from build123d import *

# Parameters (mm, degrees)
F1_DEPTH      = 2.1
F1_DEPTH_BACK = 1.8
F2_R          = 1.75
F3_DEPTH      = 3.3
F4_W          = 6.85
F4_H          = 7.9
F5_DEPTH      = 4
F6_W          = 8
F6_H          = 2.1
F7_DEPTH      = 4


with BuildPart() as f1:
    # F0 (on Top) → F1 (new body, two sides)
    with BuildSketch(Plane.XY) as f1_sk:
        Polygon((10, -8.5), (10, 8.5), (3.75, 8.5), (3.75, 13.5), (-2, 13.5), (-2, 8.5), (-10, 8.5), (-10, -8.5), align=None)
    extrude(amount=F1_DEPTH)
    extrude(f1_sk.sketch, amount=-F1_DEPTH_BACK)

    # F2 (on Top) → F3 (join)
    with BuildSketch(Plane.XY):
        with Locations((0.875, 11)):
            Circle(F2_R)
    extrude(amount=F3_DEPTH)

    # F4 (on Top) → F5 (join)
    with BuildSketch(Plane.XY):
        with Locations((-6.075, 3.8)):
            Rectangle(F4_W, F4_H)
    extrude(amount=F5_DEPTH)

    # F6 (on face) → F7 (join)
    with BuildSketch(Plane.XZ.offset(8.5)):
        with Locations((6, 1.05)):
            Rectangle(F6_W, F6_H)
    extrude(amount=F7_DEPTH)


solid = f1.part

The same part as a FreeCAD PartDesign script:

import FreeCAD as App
import Part
import Sketcher
from FreeCAD import Vector
Q = App.Units.Quantity

doc = App.newDocument("Part")
body = doc.addObject("PartDesign::Body", "Body")

sketch1 = body.newObject("Sketcher::SketchObject", "Sketch")
sketch1.AttachmentSupport = (doc.getObject("XY_Plane"), [""])
sketch1.MapMode = "FlatFace"
sketch1.addGeometry([
    Part.LineSegment(Vector(10, -8, 0), Vector(10, 8, 0)),
    Part.LineSegment(Vector(10, 8, 0), Vector(4, 8, 0)),
    Part.LineSegment(Vector(4, 8, 0), Vector(4, 14, 0)),
    Part.LineSegment(Vector(4, 14, 0), Vector(-2, 14, 0)),
    Part.LineSegment(Vector(-2, 14, 0), Vector(-2, 8, 0)),
    Part.LineSegment(Vector(-2, 8, 0), Vector(-10, 8, 0)),
    Part.LineSegment(Vector(-10, 8, 0), Vector(-10, -8, 0)),
    Part.LineSegment(Vector(-10, -8, 0), Vector(10, -8, 0)),
], False)
sketch1.addConstraint([
    Sketcher.Constraint("Coincident", 0, 2, 1, 1),
    Sketcher.Constraint("Coincident", 1, 2, 2, 1),
    Sketcher.Constraint("Coincident", 2, 2, 3, 1),
    Sketcher.Constraint("Coincident", 3, 2, 4, 1),
    Sketcher.Constraint("Coincident", 4, 2, 5, 1),
    Sketcher.Constraint("Coincident", 5, 2, 6, 1),
    Sketcher.Constraint("Coincident", 6, 2, 7, 1),
    Sketcher.Constraint("Coincident", 7, 2, 0, 1),
    Sketcher.Constraint("Vertical", 0),
    Sketcher.Constraint("Horizontal", 1),
    Sketcher.Constraint("Vertical", 2),
    Sketcher.Constraint("Horizontal", 3),
    Sketcher.Constraint("Vertical", 4),
    Sketcher.Constraint("Horizontal", 5),
    Sketcher.Constraint("Vertical", 6),
    Sketcher.Constraint("Horizontal", 7),
    Sketcher.Constraint("Symmetric", 0, 2, 6, 2, -1, 1),
    Sketcher.Constraint("Horizontal", 1, 2, 4, 2),
    Sketcher.Constraint("DistanceX", 5, 2, 5, 1, Q("8 mm")),
    Sketcher.Constraint("DistanceX", 7, 1, 7, 2, Q("20 mm")),
    Sketcher.Constraint("DistanceY", 0, 1, 0, 2, Q("17 mm")),
    Sketcher.Constraint("DistanceY", 2, 1, 2, 2, Q("5 mm")),
    Sketcher.Constraint("DistanceX", 1, 2, 1, 1, Q("6.25 mm")),
])
pad1 = body.newObject("PartDesign::Pad", "Pad")
pad1.Profile = sketch1
pad1.Type = "TwoLengths"
pad1.Length = 2.1
pad1.Length2 = 1.8

sketch2 = body.newObject("Sketcher::SketchObject", "Sketch001")
sketch2.AttachmentSupport = (doc.getObject("XY_Plane"), [""])
sketch2.MapMode = "FlatFace"
sketch2.addGeometry(Part.Circle(Vector(0.9, 11, 0), Vector(0, 0, 1), 1.8), False)
sketch2.addConstraint([
    Sketcher.Constraint("Diameter", 0, Q("3.5 mm")),
    Sketcher.Constraint("DistanceY", -1, 1, 0, 3, Q("11 mm")),
    Sketcher.Constraint("DistanceX", -1, 1, 0, 3, Q("0.875 mm")),
])
pad2 = body.newObject("PartDesign::Pad", "Pad001")
pad2.Profile = sketch2
pad2.Length = 3.3

sketch3 = body.newObject("Sketcher::SketchObject", "Sketch002")
sketch3.AttachmentSupport = (doc.getObject("XY_Plane"), [""])
sketch3.MapMode = "FlatFace"
sketch3.addGeometry([
    Part.LineSegment(Vector(-10, 8, 0), Vector(-10, 0, 0)),
    Part.LineSegment(Vector(-10, 0, 0), Vector(-3, 0, 0)),
    Part.LineSegment(Vector(-3, 0, 0), Vector(-3, 8, 0)),
    Part.LineSegment(Vector(-3, 8, 0), Vector(-10, 8, 0)),
], False)
sketch3.addConstraint([
    Sketcher.Constraint("Coincident", 0, 2, 1, 1),
    Sketcher.Constraint("Coincident", 1, 2, 2, 1),
    Sketcher.Constraint("Coincident", 2, 2, 3, 1),
    Sketcher.Constraint("Coincident", 3, 2, 0, 1),
    Sketcher.Constraint("Vertical", 0),
    Sketcher.Constraint("Horizontal", 1),
    Sketcher.Constraint("Vertical", 2),
    Sketcher.Constraint("Horizontal", 3),
    Sketcher.Constraint("DistanceY", 0, 2, 0, 1, Q("7.9 mm")),
    Sketcher.Constraint("DistanceX", 1, 1, 1, 2, Q("6.85 mm")),
    Sketcher.Constraint("DistanceX", 0, 2, -1, 1, Q("9.5 mm")),
    Sketcher.Constraint("DistanceY", 0, 2, -1, 1, Q("0.15 mm")),
])
pad3 = body.newObject("PartDesign::Pad", "Pad002")
pad3.Profile = sketch3
pad3.Length = 4

sketch4 = body.newObject("Sketcher::SketchObject", "Sketch003")
sketch4.AttachmentSupport = (doc.getObject("XZ_Plane"), [""])
sketch4.MapMode = "FlatFace"
sketch4.AttachmentOffset = App.Placement(Vector(0, 0, 8.5), App.Rotation())
sketch4.addGeometry([
    Part.LineSegment(Vector(2, 2.1, 0), Vector(2, 0, 0)),
    Part.LineSegment(Vector(2, 0, 0), Vector(10, 0, 0)),
    Part.LineSegment(Vector(10, 0, 0), Vector(10, 2.1, 0)),
    Part.LineSegment(Vector(10, 2.1, 0), Vector(2, 2.1, 0)),
], False)
sketch4.addConstraint([
    Sketcher.Constraint("Coincident", 0, 2, 1, 1),
    Sketcher.Constraint("Coincident", 1, 2, 2, 1),
    Sketcher.Constraint("Coincident", 2, 2, 3, 1),
    Sketcher.Constraint("Coincident", 3, 2, 0, 1),
    Sketcher.Constraint("Vertical", 0),
    Sketcher.Constraint("Horizontal", 1),
    Sketcher.Constraint("Vertical", 2),
    Sketcher.Constraint("Horizontal", 3),
    Sketcher.Constraint("PointOnObject", 0, 2, -1),
    Sketcher.Constraint("DistanceX", 1, 1, 1, 2, Q("8 mm")),
    Sketcher.Constraint("DistanceY", 0, 2, 0, 1, Q("2.1 mm")),
    Sketcher.Constraint("DistanceX", -1, 1, 0, 2, Q("2 mm")),
])
pad4 = body.newObject("PartDesign::Pad", "Pad003")
pad4.Profile = sketch4
pad4.Length = 4

doc.recompute()
